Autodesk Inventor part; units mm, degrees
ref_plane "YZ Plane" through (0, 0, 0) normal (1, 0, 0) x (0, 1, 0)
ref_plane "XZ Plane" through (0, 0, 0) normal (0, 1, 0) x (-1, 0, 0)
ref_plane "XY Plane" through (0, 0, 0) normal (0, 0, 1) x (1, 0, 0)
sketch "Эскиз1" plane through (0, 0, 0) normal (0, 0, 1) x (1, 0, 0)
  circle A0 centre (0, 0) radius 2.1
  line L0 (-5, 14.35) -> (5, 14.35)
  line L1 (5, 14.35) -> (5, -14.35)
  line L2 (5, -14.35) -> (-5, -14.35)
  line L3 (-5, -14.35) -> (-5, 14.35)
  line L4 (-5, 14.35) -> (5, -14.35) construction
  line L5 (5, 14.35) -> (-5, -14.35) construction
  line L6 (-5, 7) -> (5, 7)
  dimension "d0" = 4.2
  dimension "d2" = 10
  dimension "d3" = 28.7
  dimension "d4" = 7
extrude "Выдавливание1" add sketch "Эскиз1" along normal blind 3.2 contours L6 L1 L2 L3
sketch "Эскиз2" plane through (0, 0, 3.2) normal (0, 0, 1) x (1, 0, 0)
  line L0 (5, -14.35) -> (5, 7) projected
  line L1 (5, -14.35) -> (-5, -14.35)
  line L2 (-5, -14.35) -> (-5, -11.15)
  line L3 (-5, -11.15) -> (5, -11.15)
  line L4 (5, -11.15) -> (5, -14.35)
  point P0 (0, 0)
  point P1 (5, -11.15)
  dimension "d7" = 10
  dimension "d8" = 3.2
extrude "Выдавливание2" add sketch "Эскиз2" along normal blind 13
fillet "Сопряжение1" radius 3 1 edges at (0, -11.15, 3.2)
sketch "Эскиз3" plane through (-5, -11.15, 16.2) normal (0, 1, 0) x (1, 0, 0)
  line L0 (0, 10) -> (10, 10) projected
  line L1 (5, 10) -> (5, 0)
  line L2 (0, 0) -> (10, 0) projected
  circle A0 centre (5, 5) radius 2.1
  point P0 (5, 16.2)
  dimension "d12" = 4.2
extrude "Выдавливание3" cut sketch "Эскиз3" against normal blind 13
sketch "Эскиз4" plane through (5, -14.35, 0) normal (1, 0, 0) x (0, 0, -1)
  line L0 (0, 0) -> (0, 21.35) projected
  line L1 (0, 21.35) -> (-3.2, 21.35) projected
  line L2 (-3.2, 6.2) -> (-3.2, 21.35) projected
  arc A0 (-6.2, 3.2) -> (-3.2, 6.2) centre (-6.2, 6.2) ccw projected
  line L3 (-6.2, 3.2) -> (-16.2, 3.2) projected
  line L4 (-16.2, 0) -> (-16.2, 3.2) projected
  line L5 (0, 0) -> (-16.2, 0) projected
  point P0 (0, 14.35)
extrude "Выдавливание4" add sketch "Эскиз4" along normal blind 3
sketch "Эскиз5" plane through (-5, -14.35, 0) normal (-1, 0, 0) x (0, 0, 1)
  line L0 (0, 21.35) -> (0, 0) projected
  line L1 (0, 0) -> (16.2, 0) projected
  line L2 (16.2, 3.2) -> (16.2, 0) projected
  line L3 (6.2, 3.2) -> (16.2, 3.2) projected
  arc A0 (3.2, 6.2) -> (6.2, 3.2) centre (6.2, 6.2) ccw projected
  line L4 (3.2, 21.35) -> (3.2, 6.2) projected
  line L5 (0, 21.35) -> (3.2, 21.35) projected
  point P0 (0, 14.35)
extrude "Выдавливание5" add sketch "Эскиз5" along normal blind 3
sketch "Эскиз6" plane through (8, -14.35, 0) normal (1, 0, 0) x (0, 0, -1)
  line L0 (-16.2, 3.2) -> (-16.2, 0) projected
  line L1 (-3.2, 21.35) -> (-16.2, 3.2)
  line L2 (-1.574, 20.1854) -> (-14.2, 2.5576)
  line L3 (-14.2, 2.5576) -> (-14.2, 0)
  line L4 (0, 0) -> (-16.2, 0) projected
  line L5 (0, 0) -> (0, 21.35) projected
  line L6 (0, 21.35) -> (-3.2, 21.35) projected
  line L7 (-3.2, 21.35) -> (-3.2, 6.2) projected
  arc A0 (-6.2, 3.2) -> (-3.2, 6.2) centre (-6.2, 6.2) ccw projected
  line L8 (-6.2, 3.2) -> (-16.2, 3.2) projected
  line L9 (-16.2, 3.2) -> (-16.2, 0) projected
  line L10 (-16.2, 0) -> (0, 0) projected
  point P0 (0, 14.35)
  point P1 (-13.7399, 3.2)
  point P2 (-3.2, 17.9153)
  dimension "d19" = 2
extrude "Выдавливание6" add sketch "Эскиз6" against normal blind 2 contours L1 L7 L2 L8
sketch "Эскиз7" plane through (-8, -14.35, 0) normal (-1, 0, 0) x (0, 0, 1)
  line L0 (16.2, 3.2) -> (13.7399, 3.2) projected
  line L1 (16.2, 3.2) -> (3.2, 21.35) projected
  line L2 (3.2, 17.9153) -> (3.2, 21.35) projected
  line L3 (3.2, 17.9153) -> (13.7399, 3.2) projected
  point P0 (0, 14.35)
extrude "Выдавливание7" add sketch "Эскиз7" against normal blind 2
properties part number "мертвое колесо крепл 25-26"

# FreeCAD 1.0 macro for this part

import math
import FreeCAD as App
import Part
import Sketcher
from FreeCAD import Vector


def edges_at(feature, points):
    """Names of the edges that pass closest to the given points."""
    edges = feature.Shape.Edges
    near = lambda p: min(range(len(edges)), key=lambda i: edges[i].distToShape(Part.Vertex(*p))[0])
    return sorted({f"Edge{near(p) + 1}" for p in points})


def add_polygon(sketch, points):
    """Adds a closed chain of lines whose ends are joined by coincident constraints."""
    first, n = sketch.GeometryCount, len(points)
    for a, b in zip(points, points[1:] + points[:1]):
        sketch.addGeometry(Part.LineSegment(App.Vector(*a, 0), App.Vector(*b, 0)), False)
    for i in range(n):
        sketch.addConstraint(Sketcher.Constraint("Coincident", first + i, 2, first + (i + 1) % n, 1))

doc = App.newDocument("Part")
body = doc.addObject("PartDesign::Body", "Body")

# Sketch on XY plane
sketch1 = body.newObject("Sketcher::SketchObject", "Sketch")
sketch1.AttachmentSupport = (doc.getObject("XY_Plane"), [""])
sketch1.MapMode = "FlatFace"
add_polygon(sketch1, [(5, 7), (-5, 7), (-5, -14.3), (5, -14.3)])  # lines 0-3
sketch1.addGeometry(Part.Circle(Vector(0, 0, 0), Vector(0, 0, 1), 2.1), False)  # 4
sketch1.addConstraint(Sketcher.Constraint("Horizontal", 0))
sketch1.addConstraint(Sketcher.Constraint("Vertical", 1))
sketch1.addConstraint(Sketcher.Constraint("Horizontal", 2))
sketch1.addConstraint(Sketcher.Constraint("Vertical", 3))
sketch1.addConstraint(Sketcher.Constraint("Coincident", 4, 3, -1, 1))
sketch1.addConstraint(Sketcher.Constraint("Diameter", 4, 4.2))
sketch1.addConstraint(Sketcher.Constraint("DistanceX", 0, 2, 0, 1, 10.0))
sketch1.addConstraint(Sketcher.Constraint("DistanceY", -1, 1, 0, 2, 7.0))
sketch1.addConstraint(Sketcher.Constraint("DistanceX", 0, 2, -1, 1, 5.0))
sketch1.addConstraint(Sketcher.Constraint("DistanceY", 1, 2, 1, 1, 21.35))
pad1 = body.newObject("PartDesign::Pad", "Pad")
pad1.Profile = sketch1
pad1.Length = 3.2

# Sketch on XY plane
sketch2 = body.newObject("Sketcher::SketchObject", "Sketch001")
sketch2.AttachmentSupport = (doc.getObject("XY_Plane"), [""])
sketch2.MapMode = "FlatFace"
sketch2.AttachmentOffset = App.Placement(Vector(0, 0, 3.2), App.Rotation())
add_polygon(sketch2, [(-5, -14.3), (5, -14.3), (5, -11.2), (-5, -11.2)])  # lines 0-3
sketch2.addConstraint(Sketcher.Constraint("Horizontal", 0))
sketch2.addConstraint(Sketcher.Constraint("Vertical", 1))
sketch2.addConstraint(Sketcher.Constraint("Horizontal", 2))
sketch2.addConstraint(Sketcher.Constraint("Vertical", 3))
sketch2.addConstraint(Sketcher.Constraint("DistanceX", 0, 1, 0, 2, 10.0))
sketch2.addConstraint(Sketcher.Constraint("DistanceY", 1, 1, 1, 2, 3.2))
sketch2.addConstraint(Sketcher.Constraint("DistanceX", -1, 1, 0, 2, 5.0))
sketch2.addConstraint(Sketcher.Constraint("DistanceY", 0, 2, -1, 1, 14.35))
pad2 = body.newObject("PartDesign::Pad", "Pad001")
pad2.Profile = sketch2
pad2.Length = 13
doc.recompute()

fillet = body.newObject("PartDesign::Fillet", "Fillet")
fillet.Base = (pad2, edges_at(pad2, [(0, -11.15, 3.2)]))
fillet.Radius = 3

# Sketch on XZ plane
sketch3 = body.newObject("Sketcher::SketchObject", "Sketch002")
sketch3.AttachmentSupport = (doc.getObject("XZ_Plane"), [""])
sketch3.MapMode = "FlatFace"
sketch3.AttachmentOffset = App.Placement(Vector(0, 0, 11.15), App.Rotation())
sketch3.addGeometry(Part.Circle(Vector(0, 11.2, 0), Vector(0, 0, 1), 2.1), False)
sketch3.addConstraint(Sketcher.Constraint("PointOnObject", 0, 3, -2))
sketch3.addConstraint(Sketcher.Constraint("Diameter", 0, 4.2))
sketch3.addConstraint(Sketcher.Constraint("DistanceY", -1, 1, 0, 3, 11.2))
pocket1 = body.newObject("PartDesign::Pocket", "Pocket")
pocket1.Profile = sketch3
pocket1.Length = 13
pocket1.Reversed = True

# Sketch on YZ plane
sketch4 = body.newObject("Sketcher::SketchObject", "Sketch003")
sketch4.AttachmentSupport = (doc.getObject("YZ_Plane"), [""])
sketch4.MapMode = "FlatFace"
sketch4.AttachmentOffset = App.Placement(Vector(0, 0, 5), App.Rotation())
sketch4.addGeometry(Part.LineSegment(Vector(-14.3, 16.2, 0), Vector(-14.3, 0, 0)), False)
sketch4.addGeometry(Part.LineSegment(Vector(-14.3, 0, 0), Vector(7, 0, 0)), False)
sketch4.addGeometry(Part.LineSegment(Vector(7, 0, 0), Vector(7, 3.2, 0)), False)
sketch4.addGeometry(Part.LineSegment(Vector(7, 3.2, 0), Vector(-8.2, 3.2, 0)), False)
sketch4.addGeometry(Part.ArcOfCircle(Part.Circle(Vector(-8.2, 6.2, 0), Vector(0, 0, 1), 3), math.radians(180), math.radians(270)), False)
sketch4.addGeometry(Part.LineSegment(Vector(-11.2, 6.2, 0), Vector(-11.2, 16.2, 0)), False)
sketch4.addGeometry(Part.LineSegment(Vector(-11.2, 16.2, 0), Vector(-14.3, 16.2, 0)), False)
sketch4.addConstraint(Sketcher.Constraint("Coincident", 0, 2, 1, 1))
sketch4.addConstraint(Sketcher.Constraint("Coincident", 1, 2, 2, 1))
sketch4.addConstraint(Sketcher.Constraint("Coincident", 2, 2, 3, 1))
sketch4.addConstraint(Sketcher.Constraint("Tangent", 3, 2, 4, 2))
sketch4.addConstraint(Sketcher.Constraint("Tangent", 4, 1, 5, 1))
sketch4.addConstraint(Sketcher.Constraint("Coincident", 5, 2, 6, 1))
sketch4.addConstraint(Sketcher.Constraint("Coincident", 6, 2, 0, 1))
sketch4.addConstraint(Sketcher.Constraint("Vertical", 0))
sketch4.addConstraint(Sketcher.Constraint("Horizontal", 1))
sketch4.addConstraint(Sketcher.Constraint("Vertical", 2))
sketch4.addConstraint(Sketcher.Constraint("Horizontal", 3))
sketch4.addConstraint(Sketcher.Constraint("Vertical", 5))
sketch4.addConstraint(Sketcher.Constraint("Horizontal", 6))
sketch4.addConstraint(Sketcher.Constraint("PointOnObject", 0, 2, -1))
sketch4.addConstraint(Sketcher.Constraint("Equal", 6, 2))
sketch4.addConstraint(Sketcher.Constraint("Radius", 4, 3.0))
sketch4.addConstraint(Sketcher.Constraint("DistanceY", 5, 1, 5, 2, 10.0))
sketch4.addConstraint(Sketcher.Constraint("DistanceX", 6, 2, 6, 1, 3.2))
sketch4.addConstraint(Sketcher.Constraint("DistanceX", -1, 1, 1, 2, 7.0))
sketch4.addConstraint(Sketcher.Constraint("DistanceX", 1, 1, 1, 2, 21.35))
pad3 = body.newObject("PartDesign::Pad", "Pad002")
pad3.Profile = sketch4
pad3.Length = 3

# Sketch on YZ plane
sketch5 = body.newObject("Sketcher::SketchObject", "Sketch004")
sketch5.AttachmentSupport = (doc.getObject("YZ_Plane"), [""])
sketch5.MapMode = "FlatFace"
sketch5.AttachmentOffset = App.Placement(Vector(0, 0, -5), App.Rotation())
sketch5.addGeometry(Part.LineSegment(Vector(7, 3.2, 0), Vector(7, 0, 0)), False)
sketch5.addGeometry(Part.LineSegment(Vector(7, 0, 0), Vector(-14.3, 0, 0)), False)
sketch5.addGeometry(Part.LineSegment(Vector(-14.3, 0, 0), Vector(-14.3, 16.2, 0)), False)
sketch5.addGeometry(Part.LineSegment(Vector(-14.3, 16.2, 0), Vector(-11.2, 16.2, 0)), False)
sketch5.addGeometry(Part.LineSegment(Vector(-11.2, 16.2, 0), Vector(-11.2, 6.2, 0)), False)
sketch5.addGeometry(Part.ArcOfCircle(Part.Circle(Vector(-8.2, 6.2, 0), Vector(0, 0, 1), 3), math.radians(180), math.radians(270)), False)
sketch5.addGeometry(Part.LineSegment(Vector(-8.2, 3.2, 0), Vector(7, 3.2, 0)), False)
sketch5.addConstraint(Sketcher.Constraint("Coincident", 0, 2, 1, 1))
sketch5.addConstraint(Sketcher.Constraint("Coincident", 1, 2, 2, 1))
sketch5.addConstraint(Sketcher.Constraint("Coincident", 2, 2, 3, 1))
sketch5.addConstraint(Sketcher.Constraint("Coincident", 3, 2, 4, 1))
sketch5.addConstraint(Sketcher.Constraint("Tangent", 4, 2, 5, 1))
sketch5.addConstraint(Sketcher.Constraint("Tangent", 5, 2, 6, 1))
sketch5.addConstraint(Sketcher.Constraint("Coincident", 6, 2, 0, 1))
sketch5.addConstraint(Sketcher.Constraint("Vertical", 0))
sketch5.addConstraint(Sketcher.Constraint("Horizontal", 1))
sketch5.addConstraint(Sketcher.Constraint("Vertical", 2))
sketch5.addConstraint(Sketcher.Constraint("Horizontal", 3))
sketch5.addConstraint(Sketcher.Constraint("Vertical", 4))
sketch5.addConstraint(Sketcher.Constraint("Horizontal", 6))
sketch5.addConstraint(Sketcher.Constraint("PointOnObject", 0, 2, -1))
sketch5.addConstraint(Sketcher.Constraint("Equal", 3, 0))
sketch5.addConstraint(Sketcher.Constraint("Radius", 5, 3.0))
sketch5.addConstraint(Sketcher.Constraint("DistanceY", 4, 2, 4, 1, 10.0))
sketch5.addConstraint(Sketcher.Constraint("DistanceX", 3, 1, 3, 2, 3.2))
sketch5.addConstraint(Sketcher.Constraint("DistanceX", -1, 1, 0, 2, 7.0))
sketch5.addConstraint(Sketcher.Constraint("DistanceX", 1, 2, 1, 1, 21.35))
pad4 = body.newObject("PartDesign::Pad", "Pad003")
pad4.Profile = sketch5
pad4.Length = 3
pad4.Reversed = True

# Sketch on YZ plane
sketch6 = body.newObject("Sketcher::SketchObject", "Sketch005")
sketch6.AttachmentSupport = (doc.getObject("YZ_Plane"), [""])
sketch6.MapMode = "FlatFace"
sketch6.AttachmentOffset = App.Placement(Vector(0, 0, 8), App.Rotation())
add_polygon(sketch6, [(7, 3.2), (-11.2, 16.2), (-11.2, 13.7), (3.6, 3.2)])  # lines 0-3
sketch6.addConstraint(Sketcher.Constraint("Vertical", 1))
sketch6.addConstraint(Sketcher.Constraint("Horizontal", 3))
sketch6.addConstraint(Sketcher.Constraint("Parallel", 0, 2))
sketch6.addConstraint(Sketcher.Constraint("DistanceX", -1, 1, 3, 2, 7.0))
sketch6.addConstraint(Sketcher.Constraint("DistanceY", 2, 2, 0, 2, 13.0))
sketch6.addConstraint(Sketcher.Constraint("DistanceY", -1, 1, 0, 2, 16.2))
sketch6.addConstraint(Sketcher.Constraint("DistanceX", 0, 2, -1, 1, 11.15))
sketch6.addConstraint(Sketcher.Constraint("DistanceX", 3, 1, 3, 2, 3.4347))
pad5 = body.newObject("PartDesign::Pad", "Pad004")
pad5.Profile = sketch6
pad5.Length = 2
pad5.Reversed = True

# Sketch on YZ plane
sketch7 = body.newObject("Sketcher::SketchObject", "Sketch006")
sketch7.AttachmentSupport = (doc.getObject("YZ_Plane"), [""])
sketch7.MapMode = "FlatFace"
sketch7.AttachmentOffset = App.Placement(Vector(0, 0, -8), App.Rotation())
add_polygon(sketch7, [(-11.2, 13.7), (-11.2, 16.2), (7, 3.2), (3.6, 3.2)])  # lines 0-3
sketch7.addConstraint(Sketcher.Constraint("Vertical", 0))
sketch7.addConstraint(Sketcher.Constraint("Horizontal", 2))
sketch7.addConstraint(Sketcher.Constraint("Parallel", 1, 3))
sketch7.addConstraint(Sketcher.Constraint("DistanceX", -1, 1, 1, 2, 7.0))
sketch7.addConstraint(Sketcher.Constraint("DistanceY", 1, 2, 0, 2, 13.0))
sketch7.addConstraint(Sketcher.Constraint("DistanceY", 0, 1, 0, 2, 2.46))
sketch7.addConstraint(Sketcher.Constraint("DistanceY", -1, 1, 0, 2, 16.2))
sketch7.addConstraint(Sketcher.Constraint("DistanceX", 0, 2, -1, 1, 11.15))
pad6 = body.newObject("PartDesign::Pad", "Pad005")
pad6.Profile = sketch7
pad6.Length = 2

doc.recompute()
